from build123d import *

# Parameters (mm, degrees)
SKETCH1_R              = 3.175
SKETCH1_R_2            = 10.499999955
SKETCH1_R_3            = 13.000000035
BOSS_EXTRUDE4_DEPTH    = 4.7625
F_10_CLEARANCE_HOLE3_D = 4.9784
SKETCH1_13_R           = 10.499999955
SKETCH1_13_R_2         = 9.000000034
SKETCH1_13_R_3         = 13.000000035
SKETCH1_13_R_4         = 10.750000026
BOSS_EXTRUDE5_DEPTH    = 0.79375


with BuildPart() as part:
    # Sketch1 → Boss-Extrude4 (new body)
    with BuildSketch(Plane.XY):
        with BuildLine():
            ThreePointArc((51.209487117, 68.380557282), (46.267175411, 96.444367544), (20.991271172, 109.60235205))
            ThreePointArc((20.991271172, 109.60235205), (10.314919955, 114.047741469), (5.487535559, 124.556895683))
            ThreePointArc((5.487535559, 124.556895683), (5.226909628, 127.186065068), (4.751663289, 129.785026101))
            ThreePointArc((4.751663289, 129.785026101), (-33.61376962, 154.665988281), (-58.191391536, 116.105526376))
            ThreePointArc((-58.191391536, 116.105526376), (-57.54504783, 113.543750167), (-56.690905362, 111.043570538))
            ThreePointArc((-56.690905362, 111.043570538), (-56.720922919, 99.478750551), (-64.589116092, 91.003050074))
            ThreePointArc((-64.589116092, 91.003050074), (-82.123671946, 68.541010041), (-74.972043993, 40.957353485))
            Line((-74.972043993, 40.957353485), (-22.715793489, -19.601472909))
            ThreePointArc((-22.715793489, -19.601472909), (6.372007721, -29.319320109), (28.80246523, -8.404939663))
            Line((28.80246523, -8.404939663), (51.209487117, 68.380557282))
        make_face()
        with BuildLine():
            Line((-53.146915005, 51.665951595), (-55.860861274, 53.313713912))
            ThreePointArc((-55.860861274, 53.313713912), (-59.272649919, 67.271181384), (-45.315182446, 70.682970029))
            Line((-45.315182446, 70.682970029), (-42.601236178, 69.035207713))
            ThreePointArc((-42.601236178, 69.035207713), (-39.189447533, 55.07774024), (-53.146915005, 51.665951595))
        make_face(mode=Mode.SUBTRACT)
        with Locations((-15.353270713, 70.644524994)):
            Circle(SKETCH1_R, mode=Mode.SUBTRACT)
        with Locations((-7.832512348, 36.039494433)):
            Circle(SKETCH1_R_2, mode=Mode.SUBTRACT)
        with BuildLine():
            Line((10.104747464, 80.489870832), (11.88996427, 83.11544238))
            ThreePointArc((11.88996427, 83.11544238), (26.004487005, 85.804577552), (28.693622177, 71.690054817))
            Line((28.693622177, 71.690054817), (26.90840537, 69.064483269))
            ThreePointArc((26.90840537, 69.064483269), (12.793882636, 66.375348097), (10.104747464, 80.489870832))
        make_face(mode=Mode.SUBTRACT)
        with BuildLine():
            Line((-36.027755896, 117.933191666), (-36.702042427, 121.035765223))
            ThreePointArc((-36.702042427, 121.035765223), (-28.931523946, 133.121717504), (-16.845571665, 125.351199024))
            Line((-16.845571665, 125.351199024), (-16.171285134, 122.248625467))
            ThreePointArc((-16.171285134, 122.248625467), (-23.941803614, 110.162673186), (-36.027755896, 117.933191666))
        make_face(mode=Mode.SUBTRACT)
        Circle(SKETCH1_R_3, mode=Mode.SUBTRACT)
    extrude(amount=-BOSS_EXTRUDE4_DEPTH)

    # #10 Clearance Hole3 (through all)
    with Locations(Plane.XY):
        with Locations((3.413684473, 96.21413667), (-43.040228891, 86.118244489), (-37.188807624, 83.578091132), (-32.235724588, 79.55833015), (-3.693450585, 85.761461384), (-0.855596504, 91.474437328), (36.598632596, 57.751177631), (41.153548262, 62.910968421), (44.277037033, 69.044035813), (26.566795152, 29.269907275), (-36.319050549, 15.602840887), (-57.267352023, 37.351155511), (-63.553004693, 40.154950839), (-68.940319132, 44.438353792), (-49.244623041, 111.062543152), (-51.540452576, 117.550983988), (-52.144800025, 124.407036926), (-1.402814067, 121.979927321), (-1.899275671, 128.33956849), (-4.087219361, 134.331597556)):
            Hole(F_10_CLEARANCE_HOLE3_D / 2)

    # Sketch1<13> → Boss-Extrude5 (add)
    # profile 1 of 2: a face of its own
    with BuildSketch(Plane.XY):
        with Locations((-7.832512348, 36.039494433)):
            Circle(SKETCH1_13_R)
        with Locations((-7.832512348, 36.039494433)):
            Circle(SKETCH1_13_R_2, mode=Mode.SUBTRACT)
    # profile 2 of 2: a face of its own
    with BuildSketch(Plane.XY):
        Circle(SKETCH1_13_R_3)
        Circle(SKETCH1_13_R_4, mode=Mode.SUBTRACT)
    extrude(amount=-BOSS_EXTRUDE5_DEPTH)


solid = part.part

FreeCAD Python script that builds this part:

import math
import FreeCAD as App
import Part
import Sketcher

V = App.Vector
Q = App.Units.Quantity

doc = App.newDocument("Part")
body = doc.addObject("PartDesign::Body", "Body")

# Sketch on XY plane
sketch1 = body.newObject("Sketcher::SketchObject", "Sketch")
sketch1.AttachmentSupport = (doc.getObject("XY_Plane"), [""])
sketch1.MapMode = "FlatFace"
sketch1.addGeometry([
    Part.ArcOfCircle(Part.Circle(V(20.291793, 77.402749, 0), V(0, 0, 1), 32.2072), math.radians(-16.267942), math.radians(88.755549)),  # 0
    Part.ArcOfCircle(Part.Circle(V(21.336045, 125.473608, 0), V(0, 0, 1), 15.875), math.radians(-176.689577), math.radians(-91.244451)),  # 1
    Part.ArcOfCircle(Part.Circle(V(-26.665921, 122.69707, 0), V(0, 0, 1), 32.2072), math.radians(3.310423), math.radians(12.713358)),  # 2
    Part.ArcOfCircle(Part.Circle(V(-26.773807, 123.193482, 0), V(0, 0, 1), 32.2072), math.radians(11.80963), math.radians(192.713358)),  # 3
    Part.ArcOfCircle(Part.Circle(V(-26.665921, 122.69707, 0), V(0, 0, 1), 32.2072), math.radians(-168.19037), math.radians(-158.787435)),  # 4
    Part.ArcOfCircle(Part.Circle(V(-71.490286, 105.299535, 0), V(0, 0, 1), 15.875), math.radians(-64.232561), math.radians(21.212565)),  # 5
    Part.ArcOfCircle(Part.Circle(V(-50.588022, 61.998342, 0), V(0, 0, 1), 32.2072), math.radians(115.767439), math.radians(220.79093)),  # 6
    Part.LineSegment(V(-74.972044, 40.957353, 0), V(-22.715793, -19.601473, 0)),  # 7
    Part.ArcOfCircle(Part.Circle(V(0, 0, 0), V(0, 0, 1), 30.00375), math.radians(-139.20907), math.radians(-16.267942)),  # 8
    Part.LineSegment(V(28.802465, -8.40494, 0), V(51.209487, 68.380557, 0)),  # 9
    Part.Circle(V(0, 0, 0), V(0, 0, 1), 13),  # 10
    Part.Circle(V(-7.832512, 36.039494, 0), V(0, 0, 1), 10.5),  # 11
    Part.ArcOfCircle(Part.Circle(V(-47.874076, 60.35058, 0), V(0, 0, 1), 10.16), math.radians(-121.263874), math.radians(58.736126)),  # 12
    Part.LineSegment(V(-53.146915, 51.665952, 0), V(-55.860861, 53.313714, 0)),  # 13
    Part.ArcOfCircle(Part.Circle(V(-50.588022, 61.998342, 0), V(0, 0, 1), 10.16), math.radians(58.736126), math.radians(238.736126)),  # 14
    Part.LineSegment(V(-45.315182, 70.68297, 0), V(-42.601236, 69.035208, 0)),  # 15
    Part.Circle(V(-15.353271, 70.644525, 0), V(0, 0, 1), 3.175),  # 16
    Part.ArcOfCircle(Part.Circle(V(-26.099521, 120.090909, 0), V(0, 0, 1), 10.16), math.radians(-167.738506), math.radians(12.261494)),  # 17
    Part.LineSegment(V(-36.027756, 117.933192, 0), V(-36.702042, 121.035765, 0)),  # 18
    Part.ArcOfCircle(Part.Circle(V(-26.773807, 123.193482, 0), V(0, 0, 1), 10.16), math.radians(12.261494), math.radians(192.261494)),  # 19
    Part.LineSegment(V(-16.845572, 125.351199, 0), V(-16.171285, 122.248625, 0)),  # 20
    Part.ArcOfCircle(Part.Circle(V(18.506576, 74.777177, 0), V(0, 0, 1), 10.16), math.radians(145.786862), math.radians(325.786862)),  # 21
    Part.LineSegment(V(10.104747, 80.489871, 0), V(11.889964, 83.115442, 0)),  # 22
    Part.ArcOfCircle(Part.Circle(V(20.291793, 77.402749, 0), V(0, 0, 1), 10.16), math.radians(-34.213138), math.radians(145.786862)),  # 23
    Part.LineSegment(V(28.693622, 71.690055, 0), V(26.908405, 69.064483, 0)),  # 24
], False)
sketch1.addConstraint([
    Sketcher.Constraint("Coincident", 0, 2, 1, 2),
    Sketcher.Constraint("Coincident", 1, 1, 2, 1),
    Sketcher.Constraint("Coincident", 2, 2, 3, 1),
    Sketcher.Constraint("Coincident", 3, 2, 4, 1),
    Sketcher.Constraint("Coincident", 4, 2, 5, 2),
    Sketcher.Constraint("Coincident", 5, 1, 6, 1),
    Sketcher.Constraint("Coincident", 6, 2, 7, 1),
    Sketcher.Constraint("Coincident", 7, 2, 8, 1),
    Sketcher.Constraint("Coincident", 8, 2, 9, 1),
    Sketcher.Constraint("Coincident", 9, 2, 0, 1),
    Sketcher.Constraint("Coincident", 12, 1, 13, 1),
    Sketcher.Constraint("Coincident", 13, 2, 14, 2),
    Sketcher.Constraint("Coincident", 14, 1, 15, 1),
    Sketcher.Constraint("Coincident", 15, 2, 12, 2),
    Sketcher.Constraint("Coincident", 17, 1, 18, 1),
    Sketcher.Constraint("Coincident", 18, 2, 19, 2),
    Sketcher.Constraint("Coincident", 19, 1, 20, 1),
    Sketcher.Constraint("Coincident", 20, 2, 17, 2),
    Sketcher.Constraint("Coincident", 21, 1, 22, 1),
    Sketcher.Constraint("Coincident", 22, 2, 23, 2),
    Sketcher.Constraint("Coincident", 23, 1, 24, 1),
    Sketcher.Constraint("Coincident", 24, 2, 21, 2),
    Sketcher.Constraint("Coincident", 8, 3, -1, 1),
    Sketcher.Constraint("Coincident", 10, 3, -1, 1),
    Sketcher.Constraint("Coincident", 4, 3, 2, 3),
    Sketcher.Constraint("Coincident", 14, 3, 6, 3),
    Sketcher.Constraint("Coincident", 19, 3, 3, 3),
    Sketcher.Constraint("Coincident", 23, 3, 0, 3),
    Sketcher.Constraint("Radius", 12, Q("0.4 in")),
    Sketcher.Constraint("Radius", 14, Q("0.4 in")),
    Sketcher.Constraint("Radius", 17, Q("0.4 in")),
    Sketcher.Constraint("Radius", 19, Q("0.4 in")),
    Sketcher.Constraint("Radius", 21, Q("0.4 in")),
    Sketcher.Constraint("Radius", 23, Q("0.4 in")),
    Sketcher.Constraint("Diameter", 16, Q("0.25 in")),
    Sketcher.Constraint("Radius", 0, Q("1.268 in")),
    Sketcher.Constraint("Radius", 1, Q("0.625 in")),
    Sketcher.Constraint("Radius", 2, Q("1.268 in")),
    Sketcher.Constraint("Radius", 3, Q("1.268 in")),
    Sketcher.Constraint("Radius", 4, Q("1.268 in")),
    Sketcher.Constraint("Radius", 5, Q("0.625 in")),
    Sketcher.Constraint("Radius", 6, Q("1.268 in")),
    Sketcher.Constraint("Diameter", 10, Q("26 mm")),
    Sketcher.Constraint("Diameter", 11, Q("21 mm")),
    Sketcher.Constraint("Distance", 13, Q("0.125 in")),
    Sketcher.Constraint("Distance", 15, Q("0.125 in")),
    Sketcher.Constraint("Distance", 18, Q("0.125 in")),
    Sketcher.Constraint("Distance", 20, Q("0.125 in")),
    Sketcher.Constraint("Distance", 22, Q("0.125 in")),
    Sketcher.Constraint("Distance", 24, Q("0.125 in")),
    Sketcher.Constraint("Radius", 8, Q("30.00375 mm")),
    Sketcher.Constraint("DistanceY", -1, 1, 19, 1, Q("125.351199 mm")),
    Sketcher.Constraint("DistanceX", 3, 3, 0, 3, Q("47.0656 mm")),
    Sketcher.Constraint("DistanceX", 6, 3, 2, 3, Q("23.9221 mm")),
    Sketcher.Constraint("DistanceX", 2, 3, 17, 3, Q("0.566401 mm")),
    Sketcher.Constraint("DistanceY", 17, 3, 1, 3, Q("5.382699 mm")),
    Sketcher.Constraint("DistanceY", 4, 2, 2, 3, Q("11.6535 mm")),
    Sketcher.Constraint("DistanceY", 6, 2, 12, 1, Q("10.708598 mm")),
    Sketcher.Constraint("DistanceX", 5, 1, 12, 1, Q("11.442201 mm")),
    Sketcher.Constraint("DistanceY", 12, 1, 5, 1, Q("39.337098 mm")),
    Sketcher.Constraint("DistanceY", -1, 1, 0, 3, Q("77.402749 mm")),
    Sketcher.Constraint("DistanceX", 2, 3, -1, 1, Q("26.665921 mm")),
    Sketcher.Constraint("DistanceY", -1, 1, 2, 3, Q("122.69707 mm")),
    Sketcher.Constraint("DistanceY", -1, 1, 6, 3, Q("61.998342 mm")),
    Sketcher.Constraint("DistanceY", -1, 1, 12, 3, Q("60.35058 mm")),
    Sketcher.Constraint("DistanceX", 16, 3, -1, 1, Q("15.353271 mm")),
    Sketcher.Constraint("DistanceY", -1, 1, 17, 3, Q("120.090909 mm")),
    Sketcher.Constraint("DistanceX", -1, 1, 0, 2, Q("20.991271 mm")),
    Sketcher.Constraint("DistanceX", 3, 2, -1, 1, Q("58.191392 mm")),
    Sketcher.Constraint("DistanceY", -1, 1, 5, 1, Q("91.00305 mm")),
    Sketcher.Constraint("DistanceY", 8, 2, -1, 1, Q("8.40494 mm")),
    Sketcher.Constraint("DistanceY", -1, 1, 14, 1, Q("70.68297 mm")),
    Sketcher.Constraint("DistanceY", -1, 1, 17, 1, Q("117.933192 mm")),
    Sketcher.Constraint("DistanceY", -1, 1, 21, 1, Q("80.489871 mm")),
    Sketcher.Constraint("DistanceX", 6, 3, 11, 3, Q("42.75551 mm")),
    Sketcher.Constraint("DistanceY", 11, 3, 16, 3, Q("34.605031 mm")),
    Sketcher.Constraint("DistanceY", 21, 3, 0, 3, Q("2.625572 mm")),
    Sketcher.Constraint("DistanceX", 11, 3, 21, 3, Q("26.339089 mm")),
    Sketcher.Constraint("DistanceX", 1, 1, 1, 3, Q("15.84851 mm")),
    Sketcher.Constraint("DistanceX", 7, 2, 11, 3, Q("14.883281 mm")),
    Sketcher.Constraint("DistanceY", 9, 2, 23, 3, Q("9.022191 mm")),
    Sketcher.Constraint("DistanceX", 23, 3, 23, 1, Q("8.401829 mm")),
    Sketcher.Constraint("DistanceY", -1, 1, 11, 3, Q("36.039494 mm")),
])
pad1 = body.newObject("PartDesign::Pad", "Pad")
pad1.Profile = sketch1
pad1.Length = Q("0.1875 in")
pad1.Reversed = True

# Sketch on XY plane
sketch2 = body.newObject("Sketcher::SketchObject", "Sketch001")
sketch2.AttachmentSupport = (doc.getObject("XY_Plane"), [""])
sketch2.MapMode = "FlatFace"
sketch2.addGeometry([
    Part.Circle(V(3.4, 96.2, 0), V(0, 0, 1), 2.5),  # 0
    Part.Circle(V(-43, 86.1, 0), V(0, 0, 1), 2.5),  # 1
    Part.Circle(V(-37.2, 83.6, 0), V(0, 0, 1), 2.5),  # 2
    Part.Circle(V(-32.2, 79.6, 0), V(0, 0, 1), 2.5),  # 3
    Part.Circle(V(-3.7, 85.8, 0), V(0, 0, 1), 2.5),  # 4
    Part.Circle(V(-0.9, 91.5, 0), V(0, 0, 1), 2.5),  # 5
    Part.Circle(V(36.6, 57.8, 0), V(0, 0, 1), 2.5),  # 6
    Part.Circle(V(41.2, 62.9, 0), V(0, 0, 1), 2.5),  # 7
    Part.Circle(V(44.3, 69, 0), V(0, 0, 1), 2.5),  # 8
    Part.Circle(V(26.6, 29.3, 0), V(0, 0, 1), 2.5),  # 9
    Part.Circle(V(-36.3, 15.6, 0), V(0, 0, 1), 2.5),  # 10
    Part.Circle(V(-57.3, 37.4, 0), V(0, 0, 1), 2.5),  # 11
    Part.Circle(V(-63.6, 40.2, 0), V(0, 0, 1), 2.5),  # 12
    Part.Circle(V(-68.9, 44.4, 0), V(0, 0, 1), 2.5),  # 13
    Part.Circle(V(-49.2, 111.1, 0), V(0, 0, 1), 2.5),  # 14
    Part.Circle(V(-51.5, 117.6, 0), V(0, 0, 1), 2.5),  # 15
    Part.Circle(V(-52.1, 124.4, 0), V(0, 0, 1), 2.5),  # 16
    Part.Circle(V(-1.4, 122, 0), V(0, 0, 1), 2.5),  # 17
    Part.Circle(V(-1.9, 128.3, 0), V(0, 0, 1), 2.5),  # 18
    Part.Circle(V(-4.1, 134.3, 0), V(0, 0, 1), 2.5),  # 19
], False)
sketch2.addConstraint([
    Sketcher.Constraint("Equal", 0, 1),
    Sketcher.Constraint("Equal", 1, 2),
    Sketcher.Constraint("Equal", 2, 3),
    Sketcher.Constraint("Equal", 3, 4),
    Sketcher.Constraint("Equal", 4, 5),
    Sketcher.Constraint("Equal", 5, 6),
    Sketcher.Constraint("Equal", 6, 7),
    Sketcher.Constraint("Equal", 7, 8),
    Sketcher.Constraint("Equal", 8, 9),
    Sketcher.Constraint("Equal", 9, 10),
    Sketcher.Constraint("Equal", 10, 11),
    Sketcher.Constraint("Equal", 11, 12),
    Sketcher.Constraint("Equal", 12, 13),
    Sketcher.Constraint("Equal", 13, 14),
    Sketcher.Constraint("Equal", 14, 15),
    Sketcher.Constraint("Equal", 15, 16),
    Sketcher.Constraint("Equal", 16, 17),
    Sketcher.Constraint("Equal", 17, 18),
    Sketcher.Constraint("Equal", 18, 19),
    Sketcher.Constraint("Diameter", 0, Q("0.196 in")),
    Sketcher.Constraint("DistanceX", 16, 3, -1, 1, Q("52.1448 mm")),
    Sketcher.Constraint("DistanceY", 5, 3, 0, 3, Q("4.739699 mm")),
    Sketcher.Constraint("DistanceX", 4, 3, 7, 3, Q("44.846999 mm")),
    Sketcher.Constraint("DistanceY", 8, 3, 0, 3, Q("27.170101 mm")),
    Sketcher.Constraint("DistanceX", 10, 3, 4, 3, Q("32.6256 mm")),
    Sketcher.Constraint("DistanceX", 11, 3, 10, 3, Q("20.948301 mm")),
    Sketcher.Constraint("DistanceY", 11, 3, 13, 3, Q("7.087198 mm")),
    Sketcher.Constraint("DistanceY", 1, 3, 14, 3, Q("24.944299 mm")),
    Sketcher.Constraint("DistanceX", 14, 3, 3, 3, Q("17.008898 mm")),
    Sketcher.Constraint("DistanceX", 17, 3, 0, 3, Q("4.816499 mm")),
    Sketcher.Constraint("DistanceX", 1, 3, -1, 1, Q("43.040229 mm")),
    Sketcher.Constraint("DistanceY", -1, 1, 2, 3, Q("83.578091 mm")),
    Sketcher.Constraint("DistanceY", -1, 1, 3, 3, Q("79.55833 mm")),
    Sketcher.Constraint("DistanceX", 4, 3, -1, 1, Q("3.693451 mm")),
    Sketcher.Constraint("DistanceY", -1, 1, 4, 3, Q("85.761461 mm")),
    Sketcher.Constraint("DistanceY", -1, 1, 7, 3, Q("62.910968 mm")),
    Sketcher.Constraint("DistanceY", -1, 1, 10, 3, Q("15.602841 mm")),
    Sketcher.Constraint("DistanceY", -1, 1, 12, 3, Q("40.154951 mm")),
    Sketcher.Constraint("DistanceX", 13, 3, -1, 1, Q("68.940319 mm")),
    Sketcher.Constraint("DistanceY", -1, 1, 18, 3, Q("128.339568 mm")),
    Sketcher.Constraint("DistanceX", 19, 3, -1, 1, Q("4.087219 mm")),
    Sketcher.Constraint("DistanceX", 1, 3, 2, 3, Q("5.851421 mm")),
    Sketcher.Constraint("DistanceX", 3, 3, 0, 3, Q("35.649409 mm")),
    Sketcher.Constraint("DistanceX", 5, 3, 0, 3, Q("4.269281 mm")),
    Sketcher.Constraint("DistanceX", 2, 3, 5, 3, Q("36.333211 mm")),
    Sketcher.Constraint("DistanceX", 5, 3, 6, 3, Q("37.454229 mm")),
    Sketcher.Constraint("DistanceY", 6, 3, 5, 3, Q("33.72326 mm")),
    Sketcher.Constraint("DistanceY", 6, 3, 7, 3, Q("5.159791 mm")),
    Sketcher.Constraint("DistanceX", 7, 3, 8, 3, Q("3.123489 mm")),
    Sketcher.Constraint("DistanceY", 9, 3, 6, 3, Q("28.48127 mm")),
    Sketcher.Constraint("DistanceX", 9, 3, 8, 3, Q("17.710242 mm")),
    Sketcher.Constraint("DistanceY", 11, 3, 1, 3, Q("48.767089 mm")),
    Sketcher.Constraint("DistanceX", 12, 3, 3, 3, Q("31.31728 mm")),
    Sketcher.Constraint("DistanceY", 4, 3, 14, 3, Q("25.301082 mm")),
    Sketcher.Constraint("DistanceX", 15, 3, 14, 3, Q("2.29583 mm")),
    Sketcher.Constraint("DistanceY", 14, 3, 15, 3, Q("6.488441 mm")),
    Sketcher.Constraint("DistanceY", 0, 3, 17, 3, Q("25.765791 mm")),
    Sketcher.Constraint("DistanceX", 18, 3, 17, 3, Q("0.496462 mm")),
    Sketcher.Constraint("DistanceY", 16, 3, 18, 3, Q("3.932532 mm")),
    Sketcher.Constraint("DistanceY", 18, 3, 19, 3, Q("5.992029 mm")),
])
doc.recompute()
hole = body.newObject("PartDesign::Hole", "Hole")
hole.Profile = sketch2
hole.ThreadType = "None"
hole.Diameter = Q("0.196 in")
hole.DepthType = "ThroughAll"

# Sketch on XY plane
sketch3 = body.newObject("Sketcher::SketchObject", "Sketch002")
sketch3.AttachmentSupport = (doc.getObject("XY_Plane"), [""])
sketch3.MapMode = "FlatFace"
sketch3.addGeometry([
    Part.Circle(V(-8, 36, 0), V(0, 0, 1), 10),
    Part.Circle(V(-8, 36, 0), V(0, 0, 1), 9),
    Part.Circle(V(0, 0, 0), V(0, 0, 1), 13),
    Part.Circle(V(0, 0, 0), V(0, 0, 1), 11),
], False)
sketch3.addConstraint([
    Sketcher.Constraint("Coincident", 2, 3, -1, 1),
    Sketcher.Constraint("Coincident", 3, 3, -1, 1),
    Sketcher.Constraint("Coincident", 1, 3, 0, 3),
    Sketcher.Constraint("Diameter", 0, Q("21 mm")),
    Sketcher.Constraint("Diameter", 1, Q("18 mm")),
    Sketcher.Constraint("Diameter", 2, Q("26 mm")),
    Sketcher.Constraint("Diameter", 3, Q("21.5 mm")),
    Sketcher.Constraint("DistanceX", 0, 3, -1, 1, Q("7.832512 mm")),
    Sketcher.Constraint("DistanceY", -1, 1, 0, 3, Q("36.039494 mm")),
])
pad2 = body.newObject("PartDesign::Pad", "Pad001")
pad2.Profile = sketch3
pad2.Length = Q("0.03125 in")
pad2.Reversed = True

doc.recompute()
